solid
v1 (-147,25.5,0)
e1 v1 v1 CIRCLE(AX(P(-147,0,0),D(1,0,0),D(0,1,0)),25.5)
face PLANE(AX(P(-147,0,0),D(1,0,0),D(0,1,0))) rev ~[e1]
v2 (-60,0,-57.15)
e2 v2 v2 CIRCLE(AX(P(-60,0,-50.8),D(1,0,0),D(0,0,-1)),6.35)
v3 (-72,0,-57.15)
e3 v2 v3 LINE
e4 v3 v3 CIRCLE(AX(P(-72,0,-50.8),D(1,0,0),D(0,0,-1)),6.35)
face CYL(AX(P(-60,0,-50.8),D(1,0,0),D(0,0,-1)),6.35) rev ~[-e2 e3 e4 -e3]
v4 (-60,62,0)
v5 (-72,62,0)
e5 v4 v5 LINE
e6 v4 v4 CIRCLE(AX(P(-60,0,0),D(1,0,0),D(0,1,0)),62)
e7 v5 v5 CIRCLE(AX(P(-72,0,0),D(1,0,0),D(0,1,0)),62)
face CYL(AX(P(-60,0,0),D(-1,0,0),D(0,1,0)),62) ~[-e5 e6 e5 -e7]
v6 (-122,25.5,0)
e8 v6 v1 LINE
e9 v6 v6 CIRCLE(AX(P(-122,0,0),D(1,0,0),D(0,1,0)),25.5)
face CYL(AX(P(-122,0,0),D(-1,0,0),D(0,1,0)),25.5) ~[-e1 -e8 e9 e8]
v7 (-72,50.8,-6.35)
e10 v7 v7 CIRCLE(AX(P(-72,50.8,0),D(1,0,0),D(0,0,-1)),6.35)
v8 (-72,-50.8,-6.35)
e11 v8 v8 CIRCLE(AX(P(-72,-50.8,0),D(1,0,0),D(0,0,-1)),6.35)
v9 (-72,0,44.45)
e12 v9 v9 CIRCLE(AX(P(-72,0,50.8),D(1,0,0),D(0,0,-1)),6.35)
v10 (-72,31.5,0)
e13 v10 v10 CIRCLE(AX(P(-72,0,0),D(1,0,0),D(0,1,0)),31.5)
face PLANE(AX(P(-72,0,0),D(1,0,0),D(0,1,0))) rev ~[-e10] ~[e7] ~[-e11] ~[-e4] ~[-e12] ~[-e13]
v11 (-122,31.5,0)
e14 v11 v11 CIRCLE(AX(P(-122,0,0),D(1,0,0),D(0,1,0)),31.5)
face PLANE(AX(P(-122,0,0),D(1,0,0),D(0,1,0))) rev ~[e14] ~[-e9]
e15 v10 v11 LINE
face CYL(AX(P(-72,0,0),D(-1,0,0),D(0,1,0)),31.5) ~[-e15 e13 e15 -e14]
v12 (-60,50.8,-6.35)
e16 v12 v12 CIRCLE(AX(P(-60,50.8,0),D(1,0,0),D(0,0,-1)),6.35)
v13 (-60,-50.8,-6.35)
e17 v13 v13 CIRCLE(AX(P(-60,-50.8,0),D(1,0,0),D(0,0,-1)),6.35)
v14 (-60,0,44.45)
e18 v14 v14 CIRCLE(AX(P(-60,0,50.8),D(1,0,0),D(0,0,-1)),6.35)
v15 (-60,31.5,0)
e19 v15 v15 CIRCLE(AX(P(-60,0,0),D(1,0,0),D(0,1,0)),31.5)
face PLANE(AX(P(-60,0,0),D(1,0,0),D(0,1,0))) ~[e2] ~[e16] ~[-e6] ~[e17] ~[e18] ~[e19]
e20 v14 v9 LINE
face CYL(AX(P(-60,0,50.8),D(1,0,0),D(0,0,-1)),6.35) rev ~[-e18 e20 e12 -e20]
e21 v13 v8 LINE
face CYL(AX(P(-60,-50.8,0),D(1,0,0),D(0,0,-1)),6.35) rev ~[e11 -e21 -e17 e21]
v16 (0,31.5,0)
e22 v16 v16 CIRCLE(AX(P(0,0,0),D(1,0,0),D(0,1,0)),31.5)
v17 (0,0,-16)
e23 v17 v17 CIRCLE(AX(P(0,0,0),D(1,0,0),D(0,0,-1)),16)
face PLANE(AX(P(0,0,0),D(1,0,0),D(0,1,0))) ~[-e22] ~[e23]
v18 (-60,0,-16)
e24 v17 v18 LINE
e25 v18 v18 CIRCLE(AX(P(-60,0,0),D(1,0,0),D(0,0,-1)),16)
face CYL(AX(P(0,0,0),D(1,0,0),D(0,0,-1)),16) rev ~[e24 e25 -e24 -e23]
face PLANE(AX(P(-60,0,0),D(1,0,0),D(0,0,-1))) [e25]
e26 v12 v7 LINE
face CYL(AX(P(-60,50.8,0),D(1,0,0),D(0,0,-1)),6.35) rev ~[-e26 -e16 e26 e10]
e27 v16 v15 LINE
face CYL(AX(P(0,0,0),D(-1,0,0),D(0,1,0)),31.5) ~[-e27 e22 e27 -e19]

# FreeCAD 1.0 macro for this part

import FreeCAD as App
import Part
import Sketcher
Q = App.Units.Quantity

doc = App.newDocument("Part")
params = doc.addObject("Spreadsheet::Sheet", "Params")
for row, (alias, value) in enumerate([
    ("sketch1_width", "60 mm"),
    ("sketch1_width2", "12 mm"),
    ("sketch1_width3", "50 mm"),
    ("sketch1_width4", "25 mm"),
    ("sketch1_height", "6 mm"),
    ("revolution_angle", "360 deg"),
    ("sketch2_diameter", "12.7 mm"),
    ("sketch3_diameter", "32 mm"),
    ("pocket2_length", "60 mm"),
], start=1):
    params.set(f"A{row}", alias)
    params.set(f"B{row}", "=" + value)
    params.setAlias(f"B{row}", alias)

body = doc.addObject("PartDesign::Body", "Body")

# Sketch on XY plane
sketch1 = body.newObject("Sketcher::SketchObject", "Sketch")
sketch1.AttachmentSupport = (doc.getObject("XY_Plane"), [""])
sketch1.MapMode = "FlatFace"
sketch1.addGeometry([
    Part.LineSegment(App.Vector(-147, 0, 0), App.Vector(0, 0, 0)),  # 0
    Part.LineSegment(App.Vector(0, 0, 0), App.Vector(0, 31.5, 0)),  # 1
    Part.LineSegment(App.Vector(0, 31.5, 0), App.Vector(-60, 31.5, 0)),  # 2
    Part.LineSegment(App.Vector(-60, 31.5, 0), App.Vector(-60, 62, 0)),  # 3
    Part.LineSegment(App.Vector(-60, 62, 0), App.Vector(-72, 62, 0)),  # 4
    Part.LineSegment(App.Vector(-72, 62, 0), App.Vector(-72, 31.5, 0)),  # 5
    Part.LineSegment(App.Vector(-72, 31.5, 0), App.Vector(-122, 31.5, 0)),  # 6
    Part.LineSegment(App.Vector(-122, 31.5, 0), App.Vector(-122, 25.5, 0)),  # 7
    Part.LineSegment(App.Vector(-122, 25.5, 0), App.Vector(-147, 25.5, 0)),  # 8
    Part.LineSegment(App.Vector(-147, 25.5, 0), App.Vector(-147, 0, 0)),  # 9
], False)
sketch1.addConstraint([
    Sketcher.Constraint("Coincident", 0, 2, 1, 1),
    Sketcher.Constraint("Coincident", 1, 2, 2, 1),
    Sketcher.Constraint("Coincident", 2, 2, 3, 1),
    Sketcher.Constraint("Coincident", 3, 2, 4, 1),
    Sketcher.Constraint("Coincident", 4, 2, 5, 1),
    Sketcher.Constraint("Coincident", 5, 2, 6, 1),
    Sketcher.Constraint("Coincident", 6, 2, 7, 1),
    Sketcher.Constraint("Coincident", 7, 2, 8, 1),
    Sketcher.Constraint("Coincident", 8, 2, 9, 1),
    Sketcher.Constraint("Coincident", 9, 2, 0, 1),
    Sketcher.Constraint("Horizontal", 0),
    Sketcher.Constraint("Vertical", 1),
    Sketcher.Constraint("Horizontal", 2),
    Sketcher.Constraint("Vertical", 3),
    Sketcher.Constraint("Horizontal", 4),
    Sketcher.Constraint("Vertical", 5),
    Sketcher.Constraint("Horizontal", 6),
    Sketcher.Constraint("Vertical", 7),
    Sketcher.Constraint("Horizontal", 8),
    Sketcher.Constraint("Vertical", 9),
    Sketcher.Constraint("Coincident", 0, 2, -1, 1),
    Sketcher.Constraint("Horizontal", 2, 2, 5, 2),
    Sketcher.Constraint("DistanceX", 2, 2, 2, 1, Q("60 mm")),
    Sketcher.Constraint("DistanceX", 4, 2, 4, 1, Q("12 mm")),
    Sketcher.Constraint("DistanceX", 6, 2, 6, 1, Q("50 mm")),
    Sketcher.Constraint("DistanceX", 8, 2, 8, 1, Q("25 mm")),
    Sketcher.Constraint("DistanceY", 7, 2, 7, 1, Q("6 mm")),
    Sketcher.Constraint("DistanceY", 1, 1, 1, 2, Q("31.5 mm")),
    Sketcher.Constraint("DistanceY", 3, 1, 3, 2, Q("30.5 mm")),
])
sketch1.setExpression("Constraints[22]", "Params.sketch1_width")
sketch1.setExpression("Constraints[23]", "Params.sketch1_width2")
sketch1.setExpression("Constraints[24]", "Params.sketch1_width3")
sketch1.setExpression("Constraints[25]", "Params.sketch1_width4")
sketch1.setExpression("Constraints[26]", "Params.sketch1_height")
revolution = body.newObject("PartDesign::Revolution", "Revolution")
revolution.Profile = sketch1
revolution.ReferenceAxis = (sketch1, ["H_Axis"])
revolution.setExpression("Angle", "Params.revolution_angle")

# Sketch on YZ plane
sketch2 = body.newObject("Sketcher::SketchObject", "Sketch001")
sketch2.AttachmentSupport = (doc.getObject("YZ_Plane"), [""])
sketch2.MapMode = "FlatFace"
sketch2.AttachmentOffset = App.Placement(App.Vector(0, 0, -60), App.Rotation())
sketch2.addGeometry([
    Part.Circle(App.Vector(50.8, 0, 0), App.Vector(0, 0, 1), 6.35),
    Part.Circle(App.Vector(0, 50.8, 0), App.Vector(0, 0, 1), 6.35),
    Part.Circle(App.Vector(0, -50.8, 0), App.Vector(0, 0, 1), 6.35),
    Part.Circle(App.Vector(-50.8, 0, 0), App.Vector(0, 0, 1), 6.35),
], False)
sketch2.addConstraint([
    Sketcher.Constraint("Equal", 0, 1),
    Sketcher.Constraint("Equal", 1, 2),
    Sketcher.Constraint("Equal", 2, 3),
    Sketcher.Constraint("Symmetric", 1, 3, 2, 3, -1, 1),
    Sketcher.Constraint("Symmetric", 0, 3, 3, 3, -1, 1),
    Sketcher.Constraint("PointOnObject", 0, 3, -1),
    Sketcher.Constraint("PointOnObject", 1, 3, -2),
    Sketcher.Constraint("Diameter", 0, Q("12.7 mm")),
    Sketcher.Constraint("DistanceX", -1, 1, 0, 3, Q("50.8 mm")),
    Sketcher.Constraint("DistanceY", -1, 1, 1, 3, Q("50.8 mm")),
])
sketch2.setExpression("Constraints[7]", "Params.sketch2_diameter")
pocket1 = body.newObject("PartDesign::Pocket", "Pocket")
pocket1.Profile = sketch2
pocket1.Type = "ThroughAll"

# Sketch on YZ plane
sketch3 = body.newObject("Sketcher::SketchObject", "Sketch002")
sketch3.AttachmentSupport = (doc.getObject("YZ_Plane"), [""])
sketch3.MapMode = "FlatFace"
sketch3.addGeometry(Part.Circle(App.Vector(0, 0, 0), App.Vector(0, 0, 1), 16), False)
sketch3.addConstraint([
    Sketcher.Constraint("Coincident", 0, 3, -1, 1),
    Sketcher.Constraint("Diameter", 0, Q("32 mm")),
])
sketch3.setExpression("Constraints[1]", "Params.sketch3_diameter")
pocket2 = body.newObject("PartDesign::Pocket", "Pocket001")
pocket2.Profile = sketch3
pocket2.setExpression("Length", "Params.pocket2_length")

doc.recompute()
